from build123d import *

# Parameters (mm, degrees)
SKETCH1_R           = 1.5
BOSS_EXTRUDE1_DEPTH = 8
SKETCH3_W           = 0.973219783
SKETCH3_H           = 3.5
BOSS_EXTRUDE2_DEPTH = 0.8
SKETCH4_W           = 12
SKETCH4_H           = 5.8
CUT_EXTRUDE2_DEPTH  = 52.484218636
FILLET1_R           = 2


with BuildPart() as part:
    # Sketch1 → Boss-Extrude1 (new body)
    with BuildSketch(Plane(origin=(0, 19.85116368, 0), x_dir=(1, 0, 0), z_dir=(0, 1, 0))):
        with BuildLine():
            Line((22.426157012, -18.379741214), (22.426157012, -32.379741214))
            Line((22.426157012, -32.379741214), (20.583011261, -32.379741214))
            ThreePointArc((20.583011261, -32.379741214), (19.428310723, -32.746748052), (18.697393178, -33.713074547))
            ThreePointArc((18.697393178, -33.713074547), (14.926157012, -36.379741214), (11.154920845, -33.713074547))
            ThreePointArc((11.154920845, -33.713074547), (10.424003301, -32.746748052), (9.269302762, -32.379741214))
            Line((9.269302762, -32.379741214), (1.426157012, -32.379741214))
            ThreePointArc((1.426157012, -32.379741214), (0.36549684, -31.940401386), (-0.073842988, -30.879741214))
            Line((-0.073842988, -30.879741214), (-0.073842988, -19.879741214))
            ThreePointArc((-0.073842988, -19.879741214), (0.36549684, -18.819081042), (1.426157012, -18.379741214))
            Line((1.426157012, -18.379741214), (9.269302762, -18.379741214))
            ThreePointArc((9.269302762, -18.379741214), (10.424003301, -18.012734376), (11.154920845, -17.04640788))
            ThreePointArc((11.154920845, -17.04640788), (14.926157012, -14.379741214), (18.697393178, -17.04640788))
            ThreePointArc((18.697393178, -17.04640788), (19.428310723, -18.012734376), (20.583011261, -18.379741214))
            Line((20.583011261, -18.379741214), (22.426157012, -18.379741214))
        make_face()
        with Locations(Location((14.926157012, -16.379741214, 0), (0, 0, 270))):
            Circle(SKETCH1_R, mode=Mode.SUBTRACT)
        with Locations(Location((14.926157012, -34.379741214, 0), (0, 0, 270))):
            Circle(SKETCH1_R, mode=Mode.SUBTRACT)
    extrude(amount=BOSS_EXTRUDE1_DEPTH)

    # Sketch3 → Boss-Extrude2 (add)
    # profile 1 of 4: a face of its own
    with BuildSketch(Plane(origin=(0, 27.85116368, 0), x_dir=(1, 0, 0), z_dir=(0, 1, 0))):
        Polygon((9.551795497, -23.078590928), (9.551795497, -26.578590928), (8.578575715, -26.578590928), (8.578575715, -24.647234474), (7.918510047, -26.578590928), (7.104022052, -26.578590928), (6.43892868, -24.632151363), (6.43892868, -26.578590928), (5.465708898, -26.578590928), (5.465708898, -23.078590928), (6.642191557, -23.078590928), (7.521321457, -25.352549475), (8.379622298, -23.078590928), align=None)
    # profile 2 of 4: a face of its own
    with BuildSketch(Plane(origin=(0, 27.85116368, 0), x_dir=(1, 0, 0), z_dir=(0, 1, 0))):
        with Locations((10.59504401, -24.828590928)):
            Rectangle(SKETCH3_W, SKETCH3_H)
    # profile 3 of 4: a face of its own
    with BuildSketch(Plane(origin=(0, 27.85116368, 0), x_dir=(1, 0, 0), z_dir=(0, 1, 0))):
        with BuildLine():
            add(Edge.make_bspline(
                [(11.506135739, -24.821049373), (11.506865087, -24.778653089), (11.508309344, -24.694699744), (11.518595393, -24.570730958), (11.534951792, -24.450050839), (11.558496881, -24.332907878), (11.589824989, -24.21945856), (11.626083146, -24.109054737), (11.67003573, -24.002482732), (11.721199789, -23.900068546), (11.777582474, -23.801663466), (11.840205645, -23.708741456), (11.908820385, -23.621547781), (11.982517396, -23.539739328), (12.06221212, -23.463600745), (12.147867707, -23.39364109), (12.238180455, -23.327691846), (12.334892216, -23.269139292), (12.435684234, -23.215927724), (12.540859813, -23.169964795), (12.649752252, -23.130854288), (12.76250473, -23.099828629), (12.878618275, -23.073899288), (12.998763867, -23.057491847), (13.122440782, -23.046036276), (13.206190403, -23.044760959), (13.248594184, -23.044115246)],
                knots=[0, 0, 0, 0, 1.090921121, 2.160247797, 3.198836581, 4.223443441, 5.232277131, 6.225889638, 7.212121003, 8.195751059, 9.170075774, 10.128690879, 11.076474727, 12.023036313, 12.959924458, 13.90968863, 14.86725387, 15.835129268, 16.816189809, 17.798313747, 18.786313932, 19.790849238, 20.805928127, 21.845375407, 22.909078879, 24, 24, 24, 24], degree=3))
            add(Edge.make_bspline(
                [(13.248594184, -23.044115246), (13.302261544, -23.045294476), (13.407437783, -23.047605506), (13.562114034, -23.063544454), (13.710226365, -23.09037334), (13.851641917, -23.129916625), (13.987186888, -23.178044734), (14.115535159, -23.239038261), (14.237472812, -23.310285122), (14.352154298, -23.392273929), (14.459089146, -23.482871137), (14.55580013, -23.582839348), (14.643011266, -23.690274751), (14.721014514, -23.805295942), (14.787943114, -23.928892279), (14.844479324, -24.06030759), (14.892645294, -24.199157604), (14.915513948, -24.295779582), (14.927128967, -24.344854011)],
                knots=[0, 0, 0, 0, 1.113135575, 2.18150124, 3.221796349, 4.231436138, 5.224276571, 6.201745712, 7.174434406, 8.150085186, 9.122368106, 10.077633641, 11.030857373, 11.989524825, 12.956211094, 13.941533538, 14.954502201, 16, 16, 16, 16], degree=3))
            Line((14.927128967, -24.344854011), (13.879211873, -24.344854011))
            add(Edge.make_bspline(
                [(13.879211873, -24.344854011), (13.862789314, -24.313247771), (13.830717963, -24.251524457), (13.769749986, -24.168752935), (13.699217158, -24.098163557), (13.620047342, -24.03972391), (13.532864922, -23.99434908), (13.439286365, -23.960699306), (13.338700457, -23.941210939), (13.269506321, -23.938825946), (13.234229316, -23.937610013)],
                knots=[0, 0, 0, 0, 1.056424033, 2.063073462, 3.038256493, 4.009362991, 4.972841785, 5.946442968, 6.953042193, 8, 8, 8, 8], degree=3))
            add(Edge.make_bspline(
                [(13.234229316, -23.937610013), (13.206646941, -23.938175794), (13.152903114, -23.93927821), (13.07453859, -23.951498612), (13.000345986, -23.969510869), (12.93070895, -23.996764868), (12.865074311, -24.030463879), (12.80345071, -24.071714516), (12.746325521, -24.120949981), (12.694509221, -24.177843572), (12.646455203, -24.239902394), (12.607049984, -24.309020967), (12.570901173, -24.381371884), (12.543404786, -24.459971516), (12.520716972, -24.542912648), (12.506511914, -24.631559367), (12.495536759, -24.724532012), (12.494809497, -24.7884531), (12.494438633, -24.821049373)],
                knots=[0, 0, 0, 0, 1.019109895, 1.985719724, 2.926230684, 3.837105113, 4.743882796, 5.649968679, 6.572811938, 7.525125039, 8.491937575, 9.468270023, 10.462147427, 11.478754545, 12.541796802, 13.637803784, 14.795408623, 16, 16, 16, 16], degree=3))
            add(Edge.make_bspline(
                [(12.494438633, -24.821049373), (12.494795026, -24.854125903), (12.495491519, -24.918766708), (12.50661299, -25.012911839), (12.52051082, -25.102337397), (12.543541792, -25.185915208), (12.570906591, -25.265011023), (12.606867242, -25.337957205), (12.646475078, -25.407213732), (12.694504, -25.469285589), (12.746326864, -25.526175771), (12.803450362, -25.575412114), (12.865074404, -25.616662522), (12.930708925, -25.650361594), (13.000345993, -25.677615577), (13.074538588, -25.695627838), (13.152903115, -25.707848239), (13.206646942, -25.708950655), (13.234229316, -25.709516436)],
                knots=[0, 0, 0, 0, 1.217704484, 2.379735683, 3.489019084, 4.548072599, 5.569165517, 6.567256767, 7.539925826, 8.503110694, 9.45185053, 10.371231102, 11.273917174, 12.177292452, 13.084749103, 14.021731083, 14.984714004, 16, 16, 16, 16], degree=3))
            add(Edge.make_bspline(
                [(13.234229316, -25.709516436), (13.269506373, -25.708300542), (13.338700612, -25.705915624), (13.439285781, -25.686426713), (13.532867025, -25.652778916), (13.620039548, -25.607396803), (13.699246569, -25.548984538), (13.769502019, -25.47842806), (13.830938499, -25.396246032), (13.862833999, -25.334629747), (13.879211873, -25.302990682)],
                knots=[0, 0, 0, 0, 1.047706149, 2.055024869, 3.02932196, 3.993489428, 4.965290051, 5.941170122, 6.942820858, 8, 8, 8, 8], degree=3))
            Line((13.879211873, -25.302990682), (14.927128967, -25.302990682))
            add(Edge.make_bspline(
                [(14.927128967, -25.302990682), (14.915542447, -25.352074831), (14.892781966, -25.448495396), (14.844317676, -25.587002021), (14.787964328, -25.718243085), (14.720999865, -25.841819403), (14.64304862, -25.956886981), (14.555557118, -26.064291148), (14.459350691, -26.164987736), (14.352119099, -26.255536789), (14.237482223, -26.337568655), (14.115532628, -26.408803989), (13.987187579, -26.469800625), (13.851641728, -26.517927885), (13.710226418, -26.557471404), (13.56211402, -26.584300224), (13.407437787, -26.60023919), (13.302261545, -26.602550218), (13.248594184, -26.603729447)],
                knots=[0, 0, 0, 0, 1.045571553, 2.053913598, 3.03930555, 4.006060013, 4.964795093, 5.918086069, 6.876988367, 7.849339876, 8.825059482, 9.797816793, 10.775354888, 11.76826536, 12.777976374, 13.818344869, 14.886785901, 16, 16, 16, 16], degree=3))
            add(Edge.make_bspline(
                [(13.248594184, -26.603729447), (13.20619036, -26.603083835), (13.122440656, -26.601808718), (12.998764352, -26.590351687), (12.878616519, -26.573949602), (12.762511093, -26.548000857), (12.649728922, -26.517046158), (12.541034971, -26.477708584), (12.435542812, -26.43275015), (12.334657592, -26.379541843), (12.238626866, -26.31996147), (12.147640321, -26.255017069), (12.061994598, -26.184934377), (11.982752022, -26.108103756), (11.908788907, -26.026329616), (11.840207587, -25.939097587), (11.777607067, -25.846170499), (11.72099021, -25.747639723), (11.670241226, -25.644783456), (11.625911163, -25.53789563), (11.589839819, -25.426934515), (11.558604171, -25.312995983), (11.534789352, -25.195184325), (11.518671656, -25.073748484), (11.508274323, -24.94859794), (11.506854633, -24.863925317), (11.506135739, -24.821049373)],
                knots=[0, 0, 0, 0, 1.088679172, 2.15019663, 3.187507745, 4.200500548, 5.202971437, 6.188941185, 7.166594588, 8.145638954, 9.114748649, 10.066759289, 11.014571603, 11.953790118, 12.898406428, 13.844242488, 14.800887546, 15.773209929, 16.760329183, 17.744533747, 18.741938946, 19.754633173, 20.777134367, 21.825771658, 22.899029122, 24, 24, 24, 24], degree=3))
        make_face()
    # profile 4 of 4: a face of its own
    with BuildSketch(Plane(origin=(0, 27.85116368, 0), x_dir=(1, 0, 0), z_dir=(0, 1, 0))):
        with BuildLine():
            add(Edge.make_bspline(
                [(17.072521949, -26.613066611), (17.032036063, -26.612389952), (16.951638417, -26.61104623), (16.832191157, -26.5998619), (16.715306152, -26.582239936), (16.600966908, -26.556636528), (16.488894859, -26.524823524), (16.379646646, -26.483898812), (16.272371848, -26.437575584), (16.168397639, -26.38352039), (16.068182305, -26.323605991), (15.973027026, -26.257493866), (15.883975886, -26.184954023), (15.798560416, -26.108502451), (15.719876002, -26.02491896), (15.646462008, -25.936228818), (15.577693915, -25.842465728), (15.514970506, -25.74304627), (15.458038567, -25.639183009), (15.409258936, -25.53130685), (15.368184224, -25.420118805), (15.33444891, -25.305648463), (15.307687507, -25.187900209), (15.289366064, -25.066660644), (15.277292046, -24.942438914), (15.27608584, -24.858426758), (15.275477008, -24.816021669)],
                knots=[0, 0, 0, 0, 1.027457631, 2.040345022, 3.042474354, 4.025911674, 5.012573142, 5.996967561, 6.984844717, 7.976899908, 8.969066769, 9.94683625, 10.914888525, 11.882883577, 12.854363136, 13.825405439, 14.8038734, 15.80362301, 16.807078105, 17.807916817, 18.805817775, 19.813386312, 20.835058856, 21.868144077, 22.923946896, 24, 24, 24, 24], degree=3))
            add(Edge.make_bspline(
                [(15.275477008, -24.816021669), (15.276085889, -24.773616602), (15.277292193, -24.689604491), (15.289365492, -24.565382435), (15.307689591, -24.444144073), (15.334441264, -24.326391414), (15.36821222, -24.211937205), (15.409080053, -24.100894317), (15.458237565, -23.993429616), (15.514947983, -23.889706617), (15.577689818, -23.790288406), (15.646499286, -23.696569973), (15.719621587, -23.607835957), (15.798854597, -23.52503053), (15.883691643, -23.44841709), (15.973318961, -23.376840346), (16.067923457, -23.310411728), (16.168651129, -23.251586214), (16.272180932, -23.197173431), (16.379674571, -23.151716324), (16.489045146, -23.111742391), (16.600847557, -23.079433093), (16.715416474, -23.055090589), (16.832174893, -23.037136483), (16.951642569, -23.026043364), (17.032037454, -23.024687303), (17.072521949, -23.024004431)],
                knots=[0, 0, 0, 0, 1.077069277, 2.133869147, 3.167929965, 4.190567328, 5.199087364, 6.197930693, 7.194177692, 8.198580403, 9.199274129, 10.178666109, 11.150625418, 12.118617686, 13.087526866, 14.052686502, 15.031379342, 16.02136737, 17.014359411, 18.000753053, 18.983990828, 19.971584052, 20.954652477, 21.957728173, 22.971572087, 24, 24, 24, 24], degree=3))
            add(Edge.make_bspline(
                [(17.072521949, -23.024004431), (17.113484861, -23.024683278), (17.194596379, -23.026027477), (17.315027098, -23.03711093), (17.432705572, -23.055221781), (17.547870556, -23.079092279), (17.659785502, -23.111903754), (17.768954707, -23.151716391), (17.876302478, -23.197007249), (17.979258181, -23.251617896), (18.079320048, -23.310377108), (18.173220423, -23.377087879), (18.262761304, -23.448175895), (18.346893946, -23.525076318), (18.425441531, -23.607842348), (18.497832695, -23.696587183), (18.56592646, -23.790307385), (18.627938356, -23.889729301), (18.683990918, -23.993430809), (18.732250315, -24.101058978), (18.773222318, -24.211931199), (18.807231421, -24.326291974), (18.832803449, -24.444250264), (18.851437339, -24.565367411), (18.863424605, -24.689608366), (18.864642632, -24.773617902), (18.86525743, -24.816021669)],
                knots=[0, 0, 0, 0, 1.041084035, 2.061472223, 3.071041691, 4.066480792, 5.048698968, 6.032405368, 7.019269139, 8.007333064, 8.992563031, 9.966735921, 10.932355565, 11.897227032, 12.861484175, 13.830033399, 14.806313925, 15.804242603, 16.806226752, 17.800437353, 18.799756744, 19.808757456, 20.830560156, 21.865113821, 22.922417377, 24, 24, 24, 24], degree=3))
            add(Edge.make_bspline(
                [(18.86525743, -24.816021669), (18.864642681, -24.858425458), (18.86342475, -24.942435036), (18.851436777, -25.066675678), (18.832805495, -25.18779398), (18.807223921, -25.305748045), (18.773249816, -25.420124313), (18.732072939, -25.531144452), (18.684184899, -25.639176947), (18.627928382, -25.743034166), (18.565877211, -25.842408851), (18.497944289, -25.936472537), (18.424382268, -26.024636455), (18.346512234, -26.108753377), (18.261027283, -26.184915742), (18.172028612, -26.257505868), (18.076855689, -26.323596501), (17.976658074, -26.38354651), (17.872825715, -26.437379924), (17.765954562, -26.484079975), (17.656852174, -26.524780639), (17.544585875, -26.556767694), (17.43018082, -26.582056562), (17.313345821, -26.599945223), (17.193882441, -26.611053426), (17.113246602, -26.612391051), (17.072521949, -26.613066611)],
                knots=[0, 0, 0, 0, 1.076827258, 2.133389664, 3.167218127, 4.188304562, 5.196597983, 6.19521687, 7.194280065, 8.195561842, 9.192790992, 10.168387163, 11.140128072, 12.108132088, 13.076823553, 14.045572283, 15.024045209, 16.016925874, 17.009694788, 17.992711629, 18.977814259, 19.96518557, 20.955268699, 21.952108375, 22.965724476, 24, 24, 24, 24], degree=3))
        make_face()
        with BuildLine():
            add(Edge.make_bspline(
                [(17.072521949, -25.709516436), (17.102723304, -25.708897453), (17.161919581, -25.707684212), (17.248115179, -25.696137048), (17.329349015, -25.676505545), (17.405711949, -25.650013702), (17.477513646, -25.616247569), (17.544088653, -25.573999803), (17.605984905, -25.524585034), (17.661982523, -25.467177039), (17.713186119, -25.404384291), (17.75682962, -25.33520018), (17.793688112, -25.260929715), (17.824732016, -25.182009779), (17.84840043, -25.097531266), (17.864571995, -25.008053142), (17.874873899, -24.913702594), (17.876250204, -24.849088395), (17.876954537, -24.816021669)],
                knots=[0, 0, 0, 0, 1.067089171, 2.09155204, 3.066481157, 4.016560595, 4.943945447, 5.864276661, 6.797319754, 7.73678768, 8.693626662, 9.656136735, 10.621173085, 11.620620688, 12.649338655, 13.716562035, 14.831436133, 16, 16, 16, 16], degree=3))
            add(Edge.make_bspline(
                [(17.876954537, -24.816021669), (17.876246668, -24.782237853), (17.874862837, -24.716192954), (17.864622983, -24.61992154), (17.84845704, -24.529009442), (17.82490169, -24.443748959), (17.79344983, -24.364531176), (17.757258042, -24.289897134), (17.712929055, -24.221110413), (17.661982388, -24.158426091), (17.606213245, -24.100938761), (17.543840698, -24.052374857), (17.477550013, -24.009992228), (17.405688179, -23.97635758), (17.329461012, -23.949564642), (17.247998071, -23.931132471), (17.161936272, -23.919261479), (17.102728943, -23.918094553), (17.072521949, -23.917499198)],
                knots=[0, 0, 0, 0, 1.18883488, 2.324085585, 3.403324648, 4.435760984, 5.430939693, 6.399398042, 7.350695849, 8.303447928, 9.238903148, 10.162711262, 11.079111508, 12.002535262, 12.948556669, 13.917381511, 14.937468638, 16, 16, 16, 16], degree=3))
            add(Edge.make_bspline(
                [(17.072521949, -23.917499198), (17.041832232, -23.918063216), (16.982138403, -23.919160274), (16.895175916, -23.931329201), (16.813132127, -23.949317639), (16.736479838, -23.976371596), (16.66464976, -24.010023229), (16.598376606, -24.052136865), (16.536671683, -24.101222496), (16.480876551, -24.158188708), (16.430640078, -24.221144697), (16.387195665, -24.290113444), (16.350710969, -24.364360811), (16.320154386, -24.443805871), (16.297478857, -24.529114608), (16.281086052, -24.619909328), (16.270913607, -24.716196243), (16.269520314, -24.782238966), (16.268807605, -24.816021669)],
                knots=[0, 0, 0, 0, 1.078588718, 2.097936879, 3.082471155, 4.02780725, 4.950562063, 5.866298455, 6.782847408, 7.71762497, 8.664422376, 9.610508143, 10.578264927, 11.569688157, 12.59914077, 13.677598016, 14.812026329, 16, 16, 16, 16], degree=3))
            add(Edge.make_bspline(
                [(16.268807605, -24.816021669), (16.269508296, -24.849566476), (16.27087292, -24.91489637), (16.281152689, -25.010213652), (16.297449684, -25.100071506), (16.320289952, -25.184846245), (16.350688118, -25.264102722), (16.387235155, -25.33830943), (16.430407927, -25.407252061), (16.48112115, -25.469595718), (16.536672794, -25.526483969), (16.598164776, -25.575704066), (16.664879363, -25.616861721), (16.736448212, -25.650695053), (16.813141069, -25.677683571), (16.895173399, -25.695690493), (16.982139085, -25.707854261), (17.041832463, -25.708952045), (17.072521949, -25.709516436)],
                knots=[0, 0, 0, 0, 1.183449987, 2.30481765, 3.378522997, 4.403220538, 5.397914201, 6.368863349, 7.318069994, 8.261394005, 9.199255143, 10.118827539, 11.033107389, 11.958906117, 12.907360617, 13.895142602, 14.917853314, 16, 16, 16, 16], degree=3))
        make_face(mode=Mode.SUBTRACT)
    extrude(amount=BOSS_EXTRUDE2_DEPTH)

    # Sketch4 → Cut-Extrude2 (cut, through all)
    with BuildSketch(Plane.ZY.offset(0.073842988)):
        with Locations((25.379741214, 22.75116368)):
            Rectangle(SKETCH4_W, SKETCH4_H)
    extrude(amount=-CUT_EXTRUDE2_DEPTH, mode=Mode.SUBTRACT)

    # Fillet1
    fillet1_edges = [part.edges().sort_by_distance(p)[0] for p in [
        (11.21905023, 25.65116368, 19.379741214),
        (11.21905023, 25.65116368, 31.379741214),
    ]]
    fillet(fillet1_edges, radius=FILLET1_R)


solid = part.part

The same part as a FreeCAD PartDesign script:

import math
import FreeCAD as App
import Part
import Sketcher


def edges_at(feature, points):
    """Names of the edges that pass closest to the given points."""
    edges = feature.Shape.Edges
    near = lambda p: min(range(len(edges)), key=lambda i: edges[i].distToShape(Part.Vertex(*p))[0])
    return sorted({f"Edge{near(p) + 1}" for p in points})

doc = App.newDocument("Part")
params = doc.addObject("Spreadsheet::Sheet", "Params")
for row, (alias, value) in enumerate([
    ("sketch1_diameter", "3 mm"),
    ("sketch1_radius", "2 mm"),
    ("sketch1_radius2", "4 mm"),
    ("sketch1_height", "14 mm"),
    ("pad1_length", "8 mm"),
    ("sketch2_height", "3.5 mm"),
    ("pad2_length", "0.8 mm"),
    ("sketch3_height", "12 mm"),
    ("sketch3_width", "5.8 mm"),
    ("fillet_radius", "2 mm"),
], start=1):
    params.set(f"A{row}", alias)
    params.set(f"B{row}", "=" + value)
    params.setAlias(f"B{row}", alias)

body = doc.addObject("PartDesign::Body", "Body")

sketch1 = body.newObject("Sketcher::SketchObject", "Sketch")
sketch1.AttachmentSupport = (doc.getObject("XZ_Plane"), [""])
sketch1.MapMode = "FlatFace"
sketch1.AttachmentOffset = App.Placement(App.Vector(0, 0, -19.851164), App.Rotation())
sketch1.addGeometry(Part.LineSegment(App.Vector(22.4, 32.4, 0), App.Vector(22.4, 18.4, 0)), False)
sketch1.addGeometry(Part.LineSegment(App.Vector(22.4, 18.4, 0), App.Vector(20.6, 18.4, 0)), False)
sketch1.addGeometry(Part.ArcOfCircle(Part.Circle(App.Vector(20.6, 16.4, 0), App.Vector(0, 0, 1), 2), math.radians(90), math.radians(161)), False)
sketch1.addGeometry(Part.ArcOfCircle(Part.Circle(App.Vector(14.9, 18.4, 0), App.Vector(0, 0, 1), 4), math.radians(-161), math.radians(-19)), False)
sketch1.addGeometry(Part.ArcOfCircle(Part.Circle(App.Vector(9.3, 16.4, 0), App.Vector(0, 0, 1), 2), math.radians(19), math.radians(90)), False)
sketch1.addGeometry(Part.LineSegment(App.Vector(9.3, 18.4, 0), App.Vector(1.4, 18.4, 0)), False)
sketch1.addGeometry(Part.ArcOfCircle(Part.Circle(App.Vector(1.4, 19.9, 0), App.Vector(0, 0, 1), 1.5), math.radians(180), math.radians(270)), False)
sketch1.addGeometry(Part.LineSegment(App.Vector(-0.1, 19.9, 0), App.Vector(-0.1, 30.9, 0)), False)
sketch1.addGeometry(Part.ArcOfCircle(Part.Circle(App.Vector(1.4, 30.9, 0), App.Vector(0, 0, 1), 1.5), math.radians(90), math.radians(180)), False)
sketch1.addGeometry(Part.LineSegment(App.Vector(1.4, 32.4, 0), App.Vector(9.3, 32.4, 0)), False)
sketch1.addGeometry(Part.ArcOfCircle(Part.Circle(App.Vector(9.3, 34.4, 0), App.Vector(0, 0, 1), 2), math.radians(-90), math.radians(-19)), False)
sketch1.addGeometry(Part.ArcOfCircle(Part.Circle(App.Vector(14.9, 32.4, 0), App.Vector(0, 0, 1), 4), math.radians(19), math.radians(161)), False)
sketch1.addGeometry(Part.ArcOfCircle(Part.Circle(App.Vector(20.6, 34.4, 0), App.Vector(0, 0, 1), 2), math.radians(-161), math.radians(-90)), False)
sketch1.addGeometry(Part.LineSegment(App.Vector(20.6, 32.4, 0), App.Vector(22.4, 32.4, 0)), False)
sketch1.addGeometry(Part.Circle(App.Vector(14.9, 34.4, 0), App.Vector(0, 0, 1), 1.5), False)
sketch1.addGeometry(Part.Circle(App.Vector(14.9, 16.4, 0), App.Vector(0, 0, 1), 1.5), False)
sketch1.addConstraint(Sketcher.Constraint("Coincident", 0, 2, 1, 1))
sketch1.addConstraint(Sketcher.Constraint("Tangent", 1, 2, 2, 1))
sketch1.addConstraint(Sketcher.Constraint("Tangent", 2, 2, 3, 2))
sketch1.addConstraint(Sketcher.Constraint("Tangent", 3, 1, 4, 1))
sketch1.addConstraint(Sketcher.Constraint("Tangent", 4, 2, 5, 1))
sketch1.addConstraint(Sketcher.Constraint("Tangent", 5, 2, 6, 2))
sketch1.addConstraint(Sketcher.Constraint("Tangent", 6, 1, 7, 1))
sketch1.addConstraint(Sketcher.Constraint("Tangent", 7, 2, 8, 2))
sketch1.addConstraint(Sketcher.Constraint("Tangent", 8, 1, 9, 1))
sketch1.addConstraint(Sketcher.Constraint("Tangent", 9, 2, 10, 1))
sketch1.addConstraint(Sketcher.Constraint("Tangent", 10, 2, 11, 2))
sketch1.addConstraint(Sketcher.Constraint("Tangent", 11, 1, 12, 1))
sketch1.addConstraint(Sketcher.Constraint("Tangent", 12, 2, 13, 1))
sketch1.addConstraint(Sketcher.Constraint("Coincident", 13, 2, 0, 1))
sketch1.addConstraint(Sketcher.Constraint("Vertical", 0))
sketch1.addConstraint(Sketcher.Constraint("Horizontal", 1))
sketch1.addConstraint(Sketcher.Constraint("Horizontal", 5))
sketch1.addConstraint(Sketcher.Constraint("Vertical", 7))
sketch1.addConstraint(Sketcher.Constraint("Horizontal", 9))
sketch1.addConstraint(Sketcher.Constraint("Horizontal", 13))
sketch1.addConstraint(Sketcher.Constraint("Equal", 2, 4))
sketch1.addConstraint(Sketcher.Constraint("Equal", 6, 8))
sketch1.addConstraint(Sketcher.Constraint("Equal", 4, 10))
sketch1.addConstraint(Sketcher.Constraint("Equal", 3, 11))
sketch1.addConstraint(Sketcher.Constraint("Equal", 10, 12))
sketch1.addConstraint(Sketcher.Constraint("Equal", 8, 14))
sketch1.addConstraint(Sketcher.Constraint("Equal", 14, 15))
sketch1.addConstraint(Sketcher.Constraint("Horizontal", 2, 3, 4, 3))
sketch1.addConstraint(Sketcher.Constraint("Horizontal", 10, 3, 12, 3))
sketch1.addConstraint(Sketcher.Constraint("Horizontal", 12, 3, 14, 3))
sketch1.addConstraint(Sketcher.Constraint("Horizontal", 4, 3, 15, 3))
sketch1.addConstraint(Sketcher.Constraint("Horizontal", 3, 3, 0, 2))
sketch1.addConstraint(Sketcher.Constraint("Horizontal", 11, 3, 8, 1))
sketch1.addConstraint(Sketcher.Constraint("Vertical", 4, 3, 10, 3))
sketch1.addConstraint(Sketcher.Constraint("Vertical", 11, 3, 14, 3))
sketch1.addConstraint(Sketcher.Constraint("Vertical", 14, 3, 15, 3))
sketch1.addConstraint(Sketcher.Constraint("Diameter", 14, 3.0))
sketch1.addConstraint(Sketcher.Constraint("Radius", 2, 2.0))
sketch1.addConstraint(Sketcher.Constraint("Radius", 3, 4.0))
sketch1.addConstraint(Sketcher.Constraint("DistanceY", 0, 2, 0, 1, 14.0))
sketch1.addConstraint(Sketcher.Constraint("DistanceX", 6, 3, 3, 3, 13.5))
sketch1.addConstraint(Sketcher.Constraint("DistanceX", 3, 3, 0, 2, 7.5))
sketch1.addConstraint(Sketcher.Constraint("DistanceX", -1, 1, 2, 3, 20.583011))
sketch1.addConstraint(Sketcher.Constraint("DistanceY", -1, 1, 2, 3, 16.379741))
sketch1.setExpression("Constraints[36]", "Params.sketch1_diameter")
sketch1.setExpression("Constraints[37]", "Params.sketch1_radius")
sketch1.setExpression("Constraints[38]", "Params.sketch1_radius2")
sketch1.setExpression("Constraints[39]", "Params.sketch1_height")
pad1 = body.newObject("PartDesign::Pad", "Pad")
pad1.Profile = sketch1
pad1.setExpression("Length", "Params.pad1_length")
pad1.Reversed = True

sketch2 = body.newObject("Sketcher::SketchObject", "Sketch001")
sketch2.AttachmentSupport = (doc.getObject("XZ_Plane"), [""])
sketch2.MapMode = "FlatFace"
sketch2.AttachmentOffset = App.Placement(App.Vector(0, 0, -27.851164), App.Rotation())
sketch2.addGeometry(Part.LineSegment(App.Vector(9.551795, 26.578591, 0), App.Vector(9.551795, 23.078591, 0)), False)
sketch2.addGeometry(Part.LineSegment(App.Vector(9.551795, 23.078591, 0), App.Vector(8.379622, 23.078591, 0)), False)
sketch2.addGeometry(Part.LineSegment(App.Vector(8.379622, 23.078591, 0), App.Vector(7.521321, 25.352549, 0)), False)
sketch2.addGeometry(Part.LineSegment(App.Vector(7.521321, 25.352549, 0), App.Vector(6.642192, 23.078591, 0)), False)
sketch2.addGeometry(Part.LineSegment(App.Vector(6.642192, 23.078591, 0), App.Vector(5.465709, 23.078591, 0)), False)
sketch2.addGeometry(Part.LineSegment(App.Vector(5.465709, 23.078591, 0), App.Vector(5.465709, 26.578591, 0)), False)
sketch2.addGeometry(Part.LineSegment(App.Vector(5.465709, 26.578591, 0), App.Vector(6.438929, 26.578591, 0)), False)
sketch2.addGeometry(Part.LineSegment(App.Vector(6.438929, 26.578591, 0), App.Vector(6.438929, 24.632151, 0)), False)
sketch2.addGeometry(Part.LineSegment(App.Vector(6.438929, 24.632151, 0), App.Vector(7.104022, 26.578591, 0)), False)
sketch2.addGeometry(Part.LineSegment(App.Vector(7.104022, 26.578591, 0), App.Vector(7.91851, 26.578591, 0)), False)
sketch2.addGeometry(Part.LineSegment(App.Vector(7.91851, 26.578591, 0), App.Vector(8.578576, 24.647234, 0)), False)
sketch2.addGeometry(Part.LineSegment(App.Vector(8.578576, 24.647234, 0), App.Vector(8.578576, 26.578591, 0)), False)
sketch2.addGeometry(Part.LineSegment(App.Vector(8.578576, 26.578591, 0), App.Vector(9.551795, 26.578591, 0)), False)
sketch2.addGeometry(Part.LineSegment(App.Vector(10.108434, 23.078591, 0), App.Vector(10.108434, 26.578591, 0)), False)
sketch2.addGeometry(Part.LineSegment(App.Vector(10.108434, 26.578591, 0), App.Vector(11.081654, 26.578591, 0)), False)
sketch2.addGeometry(Part.LineSegment(App.Vector(11.081654, 26.578591, 0), App.Vector(11.081654, 23.078591, 0)), False)
sketch2.addGeometry(Part.LineSegment(App.Vector(11.081654, 23.078591, 0), App.Vector(10.108434, 23.078591, 0)), False)
sketch2.addGeometry(Part.BSplineCurve([App.Vector(11.506136, 24.821049, 0), App.Vector(11.506865, 24.778653, 0), App.Vector(11.508309, 24.6947, 0), App.Vector(11.518595, 24.570731, 0), App.Vector(11.534952, 24.450051, 0), App.Vector(11.558497, 24.332908, 0), App.Vector(11.589825, 24.219459, 0), App.Vector(11.626083, 24.109055, 0), App.Vector(11.670036, 24.002483, 0), App.Vector(11.7212, 23.900069, 0), App.Vector(11.777582, 23.801663, 0), App.Vector(11.840206, 23.708741, 0), App.Vector(11.90882, 23.621548, 0), App.Vector(11.982517, 23.539739, 0), App.Vector(12.062212, 23.463601, 0), App.Vector(12.147868, 23.393641, 0), App.Vector(12.23818, 23.327692, 0), App.Vector(12.334892, 23.269139, 0), App.Vector(12.435684, 23.215928, 0), App.Vector(12.54086, 23.169965, 0), App.Vector(12.649752, 23.130854, 0), App.Vector(12.762505, 23.099829, 0), App.Vector(12.878618, 23.073899, 0), App.Vector(12.998764, 23.057492, 0), App.Vector(13.122441, 23.046036, 0), App.Vector(13.20619, 23.044761, 0), App.Vector(13.248594, 23.044115, 0)], [4, 1, 1, 1, 1, 1, 1, 1, 1, 1, 1, 1, 1, 1, 1, 1, 1, 1, 1, 1, 1, 1, 1, 1, 4], [0, 1.090921121, 2.160247797, 3.198836581, 4.223443441, 5.232277131, 6.225889638, 7.212121003, 8.195751059, 9.170075774, 10.128690879, 11.076474727, 12.023036313, 12.959924458, 13.90968863, 14.86725387, 15.835129268, 16.816189809, 17.798313747, 18.786313932, 19.790849238, 20.805928127, 21.845375407, 22.909078879, 24], False, 3, [1, 1, 1, 1, 1, 1, 1, 1, 1, 1, 1, 1, 1, 1, 1, 1, 1, 1, 1, 1, 1, 1, 1, 1, 1, 1, 1], False), False)
sketch2.addGeometry(Part.BSplineCurve([App.Vector(13.248594, 26.603729, 0), App.Vector(13.20619, 26.603084, 0), App.Vector(13.122441, 26.601809, 0), App.Vector(12.998764, 26.590352, 0), App.Vector(12.878617, 26.57395, 0), App.Vector(12.762511, 26.548001, 0), App.Vector(12.649729, 26.517046, 0), App.Vector(12.541035, 26.477709, 0), App.Vector(12.435543, 26.43275, 0), App.Vector(12.334658, 26.379542, 0), App.Vector(12.238627, 26.319961, 0), App.Vector(12.14764, 26.255017, 0), App.Vector(12.061995, 26.184934, 0), App.Vector(11.982752, 26.108104, 0), App.Vector(11.908789, 26.02633, 0), App.Vector(11.840208, 25.939098, 0), App.Vector(11.777607, 25.84617, 0), App.Vector(11.72099, 25.74764, 0), App.Vector(11.670241, 25.644783, 0), App.Vector(11.625911, 25.537896, 0), App.Vector(11.58984, 25.426935, 0), App.Vector(11.558604, 25.312996, 0), App.Vector(11.534789, 25.195184, 0), App.Vector(11.518672, 25.073748, 0), App.Vector(11.508274, 24.948598, 0), App.Vector(11.506855, 24.863925, 0), App.Vector(11.506136, 24.821049, 0)], [4, 1, 1, 1, 1, 1, 1, 1, 1, 1, 1, 1, 1, 1, 1, 1, 1, 1, 1, 1, 1, 1, 1, 1, 4], [0, 1.088679172, 2.15019663, 3.187507745, 4.200500548, 5.202971437, 6.188941185, 7.166594588, 8.145638954, 9.114748649, 10.066759289, 11.014571603, 11.953790118, 12.898406428, 13.844242488, 14.800887546, 15.773209929, 16.760329183, 17.744533747, 18.741938946, 19.754633173, 20.777134367, 21.825771658, 22.899029122, 24], False, 3, [1, 1, 1, 1, 1, 1, 1, 1, 1, 1, 1, 1, 1, 1, 1, 1, 1, 1, 1, 1, 1, 1, 1, 1, 1, 1, 1], False), False)
sketch2.addGeometry(Part.BSplineCurve([App.Vector(14.927129, 25.302991, 0), App.Vector(14.915542, 25.352075, 0), App.Vector(14.892782, 25.448495, 0), App.Vector(14.844318, 25.587002, 0), App.Vector(14.787964, 25.718243, 0), App.Vector(14.721, 25.841819, 0), App.Vector(14.643049, 25.956887, 0), App.Vector(14.555557, 26.064291, 0), App.Vector(14.459351, 26.164988, 0), App.Vector(14.352119, 26.255537, 0), App.Vector(14.237482, 26.337569, 0), App.Vector(14.115533, 26.408804, 0), App.Vector(13.987188, 26.469801, 0), App.Vector(13.851642, 26.517928, 0), App.Vector(13.710226, 26.557471, 0), App.Vector(13.562114, 26.5843, 0), App.Vector(13.407438, 26.600239, 0), App.Vector(13.302262, 26.60255, 0), App.Vector(13.248594, 26.603729, 0)], [4, 1, 1, 1, 1, 1, 1, 1, 1, 1, 1, 1, 1, 1, 1, 1, 4], [0, 1.045571553, 2.053913598, 3.03930555, 4.006060013, 4.964795093, 5.918086069, 6.876988367, 7.849339876, 8.825059482, 9.797816793, 10.775354888, 11.76826536, 12.777976374, 13.818344869, 14.886785901, 16], False, 3, [1, 1, 1, 1, 1, 1, 1, 1, 1, 1, 1, 1, 1, 1, 1, 1, 1, 1, 1], False), False)
sketch2.addGeometry(Part.LineSegment(App.Vector(14.927129, 25.302991, 0), App.Vector(13.879212, 25.302991, 0)), False)
sketch2.addGeometry(Part.BSplineCurve([App.Vector(13.234229, 25.709516, 0), App.Vector(13.269506, 25.708301, 0), App.Vector(13.338701, 25.705916, 0), App.Vector(13.439286, 25.686427, 0), App.Vector(13.532867, 25.652779, 0), App.Vector(13.62004, 25.607397, 0), App.Vector(13.699247, 25.548985, 0), App.Vector(13.769502, 25.478428, 0), App.Vector(13.830938, 25.396246, 0), App.Vector(13.862834, 25.33463, 0), App.Vector(13.879212, 25.302991, 0)], [4, 1, 1, 1, 1, 1, 1, 1, 4], [0, 1.047706149, 2.055024869, 3.02932196, 3.993489428, 4.965290051, 5.941170122, 6.942820858, 8], False, 3, [1, 1, 1, 1, 1, 1, 1, 1, 1, 1, 1], False), False)
sketch2.addGeometry(Part.BSplineCurve([App.Vector(12.494439, 24.821049, 0), App.Vector(12.494795, 24.854126, 0), App.Vector(12.495492, 24.918767, 0), App.Vector(12.506613, 25.012912, 0), App.Vector(12.520511, 25.102337, 0), App.Vector(12.543542, 25.185915, 0), App.Vector(12.570907, 25.265011, 0), App.Vector(12.606867, 25.337957, 0), App.Vector(12.646475, 25.407214, 0), App.Vector(12.694504, 25.469286, 0), App.Vector(12.746327, 25.526176, 0), App.Vector(12.80345, 25.575412, 0), App.Vector(12.865074, 25.616663, 0), App.Vector(12.930709, 25.650362, 0), App.Vector(13.000346, 25.677616, 0), App.Vector(13.074539, 25.695628, 0), App.Vector(13.152903, 25.707848, 0), App.Vector(13.206647, 25.708951, 0), App.Vector(13.234229, 25.709516, 0)], [4, 1, 1, 1, 1, 1, 1, 1, 1, 1, 1, 1, 1, 1, 1, 1, 4], [0, 1.217704484, 2.379735683, 3.489019084, 4.548072599, 5.569165517, 6.567256767, 7.539925826, 8.503110694, 9.45185053, 10.371231102, 11.273917174, 12.177292452, 13.084749103, 14.021731083, 14.984714004, 16], False, 3, [1, 1, 1, 1, 1, 1, 1, 1, 1, 1, 1, 1, 1, 1, 1, 1, 1, 1, 1], False), False)
sketch2.addGeometry(Part.BSplineCurve([App.Vector(13.234229, 23.93761, 0), App.Vector(13.206647, 23.938176, 0), App.Vector(13.152903, 23.939278, 0), App.Vector(13.074539, 23.951499, 0), App.Vector(13.000346, 23.969511, 0), App.Vector(12.930709, 23.996765, 0), App.Vector(12.865074, 24.030464, 0), App.Vector(12.803451, 24.071715, 0), App.Vector(12.746326, 24.12095, 0), App.Vector(12.694509, 24.177844, 0), App.Vector(12.646455, 24.239902, 0), App.Vector(12.60705, 24.309021, 0), App.Vector(12.570901, 24.381372, 0), App.Vector(12.543405, 24.459972, 0), App.Vector(12.520717, 24.542913, 0), App.Vector(12.506512, 24.631559, 0), App.Vector(12.495537, 24.724532, 0), App.Vector(12.494809, 24.788453, 0), App.Vector(12.494439, 24.821049, 0)], [4, 1, 1, 1, 1, 1, 1, 1, 1, 1, 1, 1, 1, 1, 1, 1, 4], [0, 1.019109895, 1.985719724, 2.926230684, 3.837105113, 4.743882796, 5.649968679, 6.572811938, 7.525125039, 8.491937575, 9.468270023, 10.462147427, 11.478754545, 12.541796802, 13.637803784, 14.795408623, 16], False, 3, [1, 1, 1, 1, 1, 1, 1, 1, 1, 1, 1, 1, 1, 1, 1, 1, 1, 1, 1], False), False)
sketch2.addGeometry(Part.BSplineCurve([App.Vector(13.879212, 24.344854, 0), App.Vector(13.862789, 24.313248, 0), App.Vector(13.830718, 24.251524, 0), App.Vector(13.76975, 24.168753, 0), App.Vector(13.699217, 24.098164, 0), App.Vector(13.620047, 24.039724, 0), App.Vector(13.532865, 23.994349, 0), App.Vector(13.439286, 23.960699, 0), App.Vector(13.3387, 23.941211, 0), App.Vector(13.269506, 23.938826, 0), App.Vector(13.234229, 23.93761, 0)], [4, 1, 1, 1, 1, 1, 1, 1, 4], [0, 1.056424033, 2.063073462, 3.038256493, 4.009362991, 4.972841785, 5.946442968, 6.953042193, 8], False, 3, [1, 1, 1, 1, 1, 1, 1, 1, 1, 1, 1], False), False)
sketch2.addGeometry(Part.LineSegment(App.Vector(13.879212, 24.344854, 0), App.Vector(14.927129, 24.344854, 0)), False)
sketch2.addGeometry(Part.BSplineCurve([App.Vector(13.248594, 23.044115, 0), App.Vector(13.302262, 23.045294, 0), App.Vector(13.407438, 23.047606, 0), App.Vector(13.562114, 23.063544, 0), App.Vector(13.710226, 23.090373, 0), App.Vector(13.851642, 23.129917, 0), App.Vector(13.987187, 23.178045, 0), App.Vector(14.115535, 23.239038, 0), App.Vector(14.237473, 23.310285, 0), App.Vector(14.352154, 23.392274, 0), App.Vector(14.459089, 23.482871, 0), App.Vector(14.5558, 23.582839, 0), App.Vector(14.643011, 23.690275, 0), App.Vector(14.721015, 23.805296, 0), App.Vector(14.787943, 23.928892, 0), App.Vector(14.844479, 24.060308, 0), App.Vector(14.892645, 24.199158, 0), App.Vector(14.915514, 24.29578, 0), App.Vector(14.927129, 24.344854, 0)], [4, 1, 1, 1, 1, 1, 1, 1, 1, 1, 1, 1, 1, 1, 1, 1, 4], [0, 1.113135575, 2.18150124, 3.221796349, 4.231436138, 5.224276571, 6.201745712, 7.174434406, 8.150085186, 9.122368106, 10.077633641, 11.030857373, 11.989524825, 12.956211094, 13.941533538, 14.954502201, 16], False, 3, [1, 1, 1, 1, 1, 1, 1, 1, 1, 1, 1, 1, 1, 1, 1, 1, 1, 1, 1], False), False)
sketch2.addGeometry(Part.BSplineCurve([App.Vector(17.072522, 26.613067, 0), App.Vector(17.032036, 26.61239, 0), App.Vector(16.951638, 26.611046, 0), App.Vector(16.832191, 26.599862, 0), App.Vector(16.715306, 26.58224, 0), App.Vector(16.600967, 26.556637, 0), App.Vector(16.488895, 26.524824, 0), App.Vector(16.379647, 26.483899, 0), App.Vector(16.272372, 26.437576, 0), App.Vector(16.168398, 26.38352, 0), App.Vector(16.068182, 26.323606, 0), App.Vector(15.973027, 26.257494, 0), App.Vector(15.883976, 26.184954, 0), App.Vector(15.79856, 26.108502, 0), App.Vector(15.719876, 26.024919, 0), App.Vector(15.646462, 25.936229, 0), App.Vector(15.577694, 25.842466, 0), App.Vector(15.514971, 25.743046, 0), App.Vector(15.458039, 25.639183, 0), App.Vector(15.409259, 25.531307, 0), App.Vector(15.368184, 25.420119, 0), App.Vector(15.334449, 25.305648, 0), App.Vector(15.307688, 25.1879, 0), App.Vector(15.289366, 25.066661, 0), App.Vector(15.277292, 24.942439, 0), App.Vector(15.276086, 24.858427, 0), App.Vector(15.275477, 24.816022, 0)], [4, 1, 1, 1, 1, 1, 1, 1, 1, 1, 1, 1, 1, 1, 1, 1, 1, 1, 1, 1, 1, 1, 1, 1, 4], [0, 1.027457631, 2.040345022, 3.042474354, 4.025911674, 5.012573142, 5.996967561, 6.984844717, 7.976899908, 8.969066769, 9.94683625, 10.914888525, 11.882883577, 12.854363136, 13.825405439, 14.8038734, 15.80362301, 16.807078105, 17.807916817, 18.805817775, 19.813386312, 20.835058856, 21.868144077, 22.923946896, 24], False, 3, [1, 1, 1, 1, 1, 1, 1, 1, 1, 1, 1, 1, 1, 1, 1, 1, 1, 1, 1, 1, 1, 1, 1, 1, 1, 1, 1], False), False)
sketch2.addGeometry(Part.BSplineCurve([App.Vector(18.865257, 24.816022, 0), App.Vector(18.864643, 24.858425, 0), App.Vector(18.863425, 24.942435, 0), App.Vector(18.851437, 25.066676, 0), App.Vector(18.832805, 25.187794, 0), App.Vector(18.807224, 25.305748, 0), App.Vector(18.77325, 25.420124, 0), App.Vector(18.732073, 25.531144, 0), App.Vector(18.684185, 25.639177, 0), App.Vector(18.627928, 25.743034, 0), App.Vector(18.565877, 25.842409, 0), App.Vector(18.497944, 25.936473, 0), App.Vector(18.424382, 26.024636, 0), App.Vector(18.346512, 26.108753, 0), App.Vector(18.261027, 26.184916, 0), App.Vector(18.172029, 26.257506, 0), App.Vector(18.076856, 26.323597, 0), App.Vector(17.976658, 26.383547, 0), App.Vector(17.872826, 26.43738, 0), App.Vector(17.765955, 26.48408, 0), App.Vector(17.656852, 26.524781, 0), App.Vector(17.544586, 26.556768, 0), App.Vector(17.430181, 26.582057, 0), App.Vector(17.313346, 26.599945, 0), App.Vector(17.193882, 26.611053, 0), App.Vector(17.113247, 26.612391, 0), App.Vector(17.072522, 26.613067, 0)], [4, 1, 1, 1, 1, 1, 1, 1, 1, 1, 1, 1, 1, 1, 1, 1, 1, 1, 1, 1, 1, 1, 1, 1, 4], [0, 1.076827258, 2.133389664, 3.167218127, 4.188304562, 5.196597983, 6.19521687, 7.194280065, 8.195561842, 9.192790992, 10.168387163, 11.140128072, 12.108132088, 13.076823553, 14.045572283, 15.024045209, 16.016925874, 17.009694788, 17.992711629, 18.977814259, 19.96518557, 20.955268699, 21.952108375, 22.965724476, 24], False, 3, [1, 1, 1, 1, 1, 1, 1, 1, 1, 1, 1, 1, 1, 1, 1, 1, 1, 1, 1, 1, 1, 1, 1, 1, 1, 1, 1], False), False)
sketch2.addGeometry(Part.BSplineCurve([App.Vector(17.072522, 23.024004, 0), App.Vector(17.113485, 23.024683, 0), App.Vector(17.194596, 23.026027, 0), App.Vector(17.315027, 23.037111, 0), App.Vector(17.432706, 23.055222, 0), App.Vector(17.547871, 23.079092, 0), App.Vector(17.659786, 23.111904, 0), App.Vector(17.768955, 23.151716, 0), App.Vector(17.876302, 23.197007, 0), App.Vector(17.979258, 23.251618, 0), App.Vector(18.07932, 23.310377, 0), App.Vector(18.17322, 23.377088, 0), App.Vector(18.262761, 23.448176, 0), App.Vector(18.346894, 23.525076, 0), App.Vector(18.425442, 23.607842, 0), App.Vector(18.497833, 23.696587, 0), App.Vector(18.565926, 23.790307, 0), App.Vector(18.627938, 23.889729, 0), App.Vector(18.683991, 23.993431, 0), App.Vector(18.73225, 24.101059, 0), App.Vector(18.773222, 24.211931, 0), App.Vector(18.807231, 24.326292, 0), App.Vector(18.832803, 24.44425, 0), App.Vector(18.851437, 24.565367, 0), App.Vector(18.863425, 24.689608, 0), App.Vector(18.864643, 24.773618, 0), App.Vector(18.865257, 24.816022, 0)], [4, 1, 1, 1, 1, 1, 1, 1, 1, 1, 1, 1, 1, 1, 1, 1, 1, 1, 1, 1, 1, 1, 1, 1, 4], [0, 1.041084035, 2.061472223, 3.071041691, 4.066480792, 5.048698968, 6.032405368, 7.019269139, 8.007333064, 8.992563031, 9.966735921, 10.932355565, 11.897227032, 12.861484175, 13.830033399, 14.806313925, 15.804242603, 16.806226752, 17.800437353, 18.799756744, 19.808757456, 20.830560156, 21.865113821, 22.922417377, 24], False, 3, [1, 1, 1, 1, 1, 1, 1, 1, 1, 1, 1, 1, 1, 1, 1, 1, 1, 1, 1, 1, 1, 1, 1, 1, 1, 1, 1], False), False)
sketch2.addGeometry(Part.BSplineCurve([App.Vector(15.275477, 24.816022, 0), App.Vector(15.276086, 24.773617, 0), App.Vector(15.277292, 24.689604, 0), App.Vector(15.289365, 24.565382, 0), App.Vector(15.30769, 24.444144, 0), App.Vector(15.334441, 24.326391, 0), App.Vector(15.368212, 24.211937, 0), App.Vector(15.40908, 24.100894, 0), App.Vector(15.458238, 23.99343, 0), App.Vector(15.514948, 23.889707, 0), App.Vector(15.57769, 23.790288, 0), App.Vector(15.646499, 23.69657, 0), App.Vector(15.719622, 23.607836, 0), App.Vector(15.798855, 23.525031, 0), App.Vector(15.883692, 23.448417, 0), App.Vector(15.973319, 23.37684, 0), App.Vector(16.067923, 23.310412, 0), App.Vector(16.168651, 23.251586, 0), App.Vector(16.272181, 23.197173, 0), App.Vector(16.379675, 23.151716, 0), App.Vector(16.489045, 23.111742, 0), App.Vector(16.600848, 23.079433, 0), App.Vector(16.715416, 23.055091, 0), App.Vector(16.832175, 23.037136, 0), App.Vector(16.951643, 23.026043, 0), App.Vector(17.032037, 23.024687, 0), App.Vector(17.072522, 23.024004, 0)], [4, 1, 1, 1, 1, 1, 1, 1, 1, 1, 1, 1, 1, 1, 1, 1, 1, 1, 1, 1, 1, 1, 1, 1, 4], [0, 1.077069277, 2.133869147, 3.167929965, 4.190567328, 5.199087364, 6.197930693, 7.194177692, 8.198580403, 9.199274129, 10.178666109, 11.150625418, 12.118617686, 13.087526866, 14.052686502, 15.031379342, 16.02136737, 17.014359411, 18.000753053, 18.983990828, 19.971584052, 20.954652477, 21.957728173, 22.971572087, 24], False, 3, [1, 1, 1, 1, 1, 1, 1, 1, 1, 1, 1, 1, 1, 1, 1, 1, 1, 1, 1, 1, 1, 1, 1, 1, 1, 1, 1], False), False)
sketch2.addGeometry(Part.BSplineCurve([App.Vector(16.268808, 24.816022, 0), App.Vector(16.269508, 24.849566, 0), App.Vector(16.270873, 24.914896, 0), App.Vector(16.281153, 25.010214, 0), App.Vector(16.29745, 25.100072, 0), App.Vector(16.32029, 25.184846, 0), App.Vector(16.350688, 25.264103, 0), App.Vector(16.387235, 25.338309, 0), App.Vector(16.430408, 25.407252, 0), App.Vector(16.481121, 25.469596, 0), App.Vector(16.536673, 25.526484, 0), App.Vector(16.598165, 25.575704, 0), App.Vector(16.664879, 25.616862, 0), App.Vector(16.736448, 25.650695, 0), App.Vector(16.813141, 25.677684, 0), App.Vector(16.895173, 25.69569, 0), App.Vector(16.982139, 25.707854, 0), App.Vector(17.041832, 25.708952, 0), App.Vector(17.072522, 25.709516, 0)], [4, 1, 1, 1, 1, 1, 1, 1, 1, 1, 1, 1, 1, 1, 1, 1, 4], [0, 1.183449987, 2.30481765, 3.378522997, 4.403220538, 5.397914201, 6.368863349, 7.318069994, 8.261394005, 9.199255143, 10.118827539, 11.033107389, 11.958906117, 12.907360617, 13.895142602, 14.917853314, 16], False, 3, [1, 1, 1, 1, 1, 1, 1, 1, 1, 1, 1, 1, 1, 1, 1, 1, 1, 1, 1], False), False)
sketch2.addGeometry(Part.BSplineCurve([App.Vector(17.072522, 23.917499, 0), App.Vector(17.041832, 23.918063, 0), App.Vector(16.982138, 23.91916, 0), App.Vector(16.895176, 23.931329, 0), App.Vector(16.813132, 23.949318, 0), App.Vector(16.73648, 23.976372, 0), App.Vector(16.66465, 24.010023, 0), App.Vector(16.598377, 24.052137, 0), App.Vector(16.536672, 24.101222, 0), App.Vector(16.480877, 24.158189, 0), App.Vector(16.43064, 24.221145, 0), App.Vector(16.387196, 24.290113, 0), App.Vector(16.350711, 24.364361, 0), App.Vector(16.320154, 24.443806, 0), App.Vector(16.297479, 24.529115, 0), App.Vector(16.281086, 24.619909, 0), App.Vector(16.270914, 24.716196, 0), App.Vector(16.26952, 24.782239, 0), App.Vector(16.268808, 24.816022, 0)], [4, 1, 1, 1, 1, 1, 1, 1, 1, 1, 1, 1, 1, 1, 1, 1, 4], [0, 1.078588718, 2.097936879, 3.082471155, 4.02780725, 4.950562063, 5.866298455, 6.782847408, 7.71762497, 8.664422376, 9.610508143, 10.578264927, 11.569688157, 12.59914077, 13.677598016, 14.812026329, 16], False, 3, [1, 1, 1, 1, 1, 1, 1, 1, 1, 1, 1, 1, 1, 1, 1, 1, 1, 1, 1], False), False)
sketch2.addGeometry(Part.BSplineCurve([App.Vector(17.876955, 24.816022, 0), App.Vector(17.876247, 24.782238, 0), App.Vector(17.874863, 24.716193, 0), App.Vector(17.864623, 24.619922, 0), App.Vector(17.848457, 24.529009, 0), App.Vector(17.824902, 24.443749, 0), App.Vector(17.79345, 24.364531, 0), App.Vector(17.757258, 24.289897, 0), App.Vector(17.712929, 24.22111, 0), App.Vector(17.661982, 24.158426, 0), App.Vector(17.606213, 24.100939, 0), App.Vector(17.543841, 24.052375, 0), App.Vector(17.47755, 24.009992, 0), App.Vector(17.405688, 23.976358, 0), App.Vector(17.329461, 23.949565, 0), App.Vector(17.247998, 23.931132, 0), App.Vector(17.161936, 23.919261, 0), App.Vector(17.102729, 23.918095, 0), App.Vector(17.072522, 23.917499, 0)], [4, 1, 1, 1, 1, 1, 1, 1, 1, 1, 1, 1, 1, 1, 1, 1, 4], [0, 1.18883488, 2.324085585, 3.403324648, 4.435760984, 5.430939693, 6.399398042, 7.350695849, 8.303447928, 9.238903148, 10.162711262, 11.079111508, 12.002535262, 12.948556669, 13.917381511, 14.937468638, 16], False, 3, [1, 1, 1, 1, 1, 1, 1, 1, 1, 1, 1, 1, 1, 1, 1, 1, 1, 1, 1], False), False)
sketch2.addGeometry(Part.BSplineCurve([App.Vector(17.072522, 25.709516, 0), App.Vector(17.102723, 25.708897, 0), App.Vector(17.16192, 25.707684, 0), App.Vector(17.248115, 25.696137, 0), App.Vector(17.329349, 25.676506, 0), App.Vector(17.405712, 25.650014, 0), App.Vector(17.477514, 25.616248, 0), App.Vector(17.544089, 25.574, 0), App.Vector(17.605985, 25.524585, 0), App.Vector(17.661983, 25.467177, 0), App.Vector(17.713186, 25.404384, 0), App.Vector(17.75683, 25.3352, 0), App.Vector(17.793688, 25.26093, 0), App.Vector(17.824732, 25.18201, 0), App.Vector(17.8484, 25.097531, 0), App.Vector(17.864572, 25.008053, 0), App.Vector(17.874874, 24.913703, 0), App.Vector(17.87625, 24.849088, 0), App.Vector(17.876955, 24.816022, 0)], [4, 1, 1, 1, 1, 1, 1, 1, 1, 1, 1, 1, 1, 1, 1, 1, 4], [0, 1.067089171, 2.09155204, 3.066481157, 4.016560595, 4.943945447, 5.864276661, 6.797319754, 7.73678768, 8.693626662, 9.656136735, 10.621173085, 11.620620688, 12.649338655, 13.716562035, 14.831436133, 16], False, 3, [1, 1, 1, 1, 1, 1, 1, 1, 1, 1, 1, 1, 1, 1, 1, 1, 1, 1, 1], False), False)
sketch2.addConstraint(Sketcher.Constraint("Block", 17))
sketch2.addConstraint(Sketcher.Constraint("Block", 18))
sketch2.addConstraint(Sketcher.Constraint("Block", 19))
sketch2.addConstraint(Sketcher.Constraint("Block", 21))
sketch2.addConstraint(Sketcher.Constraint("Block", 22))
sketch2.addConstraint(Sketcher.Constraint("Block", 23))
sketch2.addConstraint(Sketcher.Constraint("Block", 24))
sketch2.addConstraint(Sketcher.Constraint("Block", 26))
sketch2.addConstraint(Sketcher.Constraint("Block", 27))
sketch2.addConstraint(Sketcher.Constraint("Block", 28))
sketch2.addConstraint(Sketcher.Constraint("Block", 29))
sketch2.addConstraint(Sketcher.Constraint("Block", 30))
sketch2.addConstraint(Sketcher.Constraint("Block", 31))
sketch2.addConstraint(Sketcher.Constraint("Block", 32))
sketch2.addConstraint(Sketcher.Constraint("Block", 33))
sketch2.addConstraint(Sketcher.Constraint("Block", 34))
sketch2.addConstraint(Sketcher.Constraint("Coincident", 0, 2, 1, 1))
sketch2.addConstraint(Sketcher.Constraint("Coincident", 1, 2, 2, 1))
sketch2.addConstraint(Sketcher.Constraint("Coincident", 2, 2, 3, 1))
sketch2.addConstraint(Sketcher.Constraint("Coincident", 3, 2, 4, 1))
sketch2.addConstraint(Sketcher.Constraint("Coincident", 4, 2, 5, 1))
sketch2.addConstraint(Sketcher.Constraint("Coincident", 5, 2, 6, 1))
sketch2.addConstraint(Sketcher.Constraint("Coincident", 6, 2, 7, 1))
sketch2.addConstraint(Sketcher.Constraint("Coincident", 7, 2, 8, 1))
sketch2.addConstraint(Sketcher.Constraint("Coincident", 8, 2, 9, 1))
sketch2.addConstraint(Sketcher.Constraint("Coincident", 9, 2, 10, 1))
sketch2.addConstraint(Sketcher.Constraint("Coincident", 10, 2, 11, 1))
sketch2.addConstraint(Sketcher.Constraint("Coincident", 11, 2, 12, 1))
sketch2.addConstraint(Sketcher.Constraint("Coincident", 12, 2, 0, 1))
sketch2.addConstraint(Sketcher.Constraint("Coincident", 13, 2, 14, 1))
sketch2.addConstraint(Sketcher.Constraint("Coincident", 14, 2, 15, 1))
sketch2.addConstraint(Sketcher.Constraint("Coincident", 15, 2, 16, 1))
sketch2.addConstraint(Sketcher.Constraint("Coincident", 16, 2, 13, 1))
sketch2.addConstraint(Sketcher.Constraint("Coincident", 19, 1, 20, 1))
sketch2.addConstraint(Sketcher.Constraint("Coincident", 20, 2, 21, 2))
sketch2.addConstraint(Sketcher.Constraint("Coincident", 24, 1, 25, 1))
sketch2.addConstraint(Sketcher.Constraint("Coincident", 25, 2, 26, 2))
sketch2.addConstraint(Sketcher.Constraint("Vertical", 0))
sketch2.addConstraint(Sketcher.Constraint("Horizontal", 1))
sketch2.addConstraint(Sketcher.Constraint("Horizontal", 4))
sketch2.addConstraint(Sketcher.Constraint("Vertical", 5))
sketch2.addConstraint(Sketcher.Constraint("Horizontal", 6))
sketch2.addConstraint(Sketcher.Constraint("Vertical", 7))
sketch2.addConstraint(Sketcher.Constraint("Horizontal", 9))
sketch2.addConstraint(Sketcher.Constraint("Vertical", 11))
sketch2.addConstraint(Sketcher.Constraint("Horizontal", 12))
sketch2.addConstraint(Sketcher.Constraint("Vertical", 13))
sketch2.addConstraint(Sketcher.Constraint("Horizontal", 14))
sketch2.addConstraint(Sketcher.Constraint("Vertical", 15))
sketch2.addConstraint(Sketcher.Constraint("Horizontal", 16))
sketch2.addConstraint(Sketcher.Constraint("Horizontal", 1, 2, 3, 2))
sketch2.addConstraint(Sketcher.Constraint("Horizontal", 6, 2, 8, 2))
sketch2.addConstraint(Sketcher.Constraint("Horizontal", 9, 2, 11, 2))
sketch2.addConstraint(Sketcher.Constraint("Horizontal", 12, 2, 13, 2))
sketch2.addConstraint(Sketcher.Constraint("Horizontal", 4, 2, 15, 2))
sketch2.addConstraint(Sketcher.Constraint("Equal", 6, 12))
sketch2.addConstraint(Sketcher.Constraint("Equal", 12, 14))
sketch2.addConstraint(Sketcher.Constraint("DistanceY", 0, 2, 0, 1, 3.5))
sketch2.addConstraint(Sketcher.Constraint("DistanceX", 6, 1, 6, 2, 0.97322))
sketch2.addConstraint(Sketcher.Constraint("DistanceY", 7, 2, 7, 1, 1.94644))
sketch2.addConstraint(Sketcher.Constraint("DistanceX", 2, 2, 1, 2, 0.858301))
sketch2.addConstraint(Sketcher.Constraint("DistanceY", 7, 2, 2, 2, 0.720398))
sketch2.addConstraint(Sketcher.Constraint("DistanceX", 8, 2, 2, 2, 0.417299))
sketch2.addConstraint(Sketcher.Constraint("DistanceX", 5, 2, 9, 2, 2.452801))
sketch2.addConstraint(Sketcher.Constraint("DistanceY", 20, 2, 14, 2, 1.2756))
sketch2.addConstraint(Sketcher.Constraint("DistanceX", 1, 2, 1, 1, 1.172173))
sketch2.addConstraint(Sketcher.Constraint("DistanceX", 4, 2, 4, 1, 1.176483))
sketch2.addConstraint(Sketcher.Constraint("DistanceX", 9, 1, 9, 2, 0.814488))
sketch2.addConstraint(Sketcher.Constraint("DistanceY", 11, 1, 11, 2, 1.931356))
sketch2.addConstraint(Sketcher.Constraint("DistanceX", -1, 1, 2, 2, 7.521321))
sketch2.addConstraint(Sketcher.Constraint("DistanceX", 12, 2, 13, 2, 0.556639))
sketch2.setExpression("Constraints[57]", "Params.sketch2_height")
pad2 = body.newObject("PartDesign::Pad", "Pad001")
pad2.Profile = sketch2
pad2.setExpression("Length", "Params.pad2_length")
pad2.Reversed = True

sketch3 = body.newObject("Sketcher::SketchObject", "Sketch002")
sketch3.AttachmentSupport = (doc.getObject("YZ_Plane"), [""])
sketch3.MapMode = "FlatFace"
sketch3.AttachmentOffset = App.Placement(App.Vector(0, 0, -0.073843), App.Rotation())
sketch3.addGeometry(Part.LineSegment(App.Vector(26, 19, 0), App.Vector(20, 19, 0)), False)
sketch3.addGeometry(Part.LineSegment(App.Vector(20, 19, 0), App.Vector(20, 31, 0)), False)
sketch3.addGeometry(Part.LineSegment(App.Vector(20, 31, 0), App.Vector(26, 31, 0)), False)
sketch3.addGeometry(Part.LineSegment(App.Vector(26, 31, 0), App.Vector(26, 19, 0)), False)
sketch3.addConstraint(Sketcher.Constraint("Coincident", 0, 2, 1, 1))
sketch3.addConstraint(Sketcher.Constraint("Coincident", 1, 2, 2, 1))
sketch3.addConstraint(Sketcher.Constraint("Coincident", 2, 2, 3, 1))
sketch3.addConstraint(Sketcher.Constraint("Coincident", 3, 2, 0, 1))
sketch3.addConstraint(Sketcher.Constraint("Horizontal", 0))
sketch3.addConstraint(Sketcher.Constraint("Vertical", 1))
sketch3.addConstraint(Sketcher.Constraint("Horizontal", 2))
sketch3.addConstraint(Sketcher.Constraint("Vertical", 3))
sketch3.addConstraint(Sketcher.Constraint("DistanceY", 1, 1, 1, 2, 12.0))
sketch3.addConstraint(Sketcher.Constraint("DistanceX", 0, 2, 0, 1, 5.8))
sketch3.addConstraint(Sketcher.Constraint("DistanceY", -1, 1, 0, 2, 19.379741))
sketch3.addConstraint(Sketcher.Constraint("DistanceX", -1, 1, 0, 2, 19.851164))
sketch3.setExpression("Constraints[8]", "Params.sketch3_height")
sketch3.setExpression("Constraints[9]", "Params.sketch3_width")
pocket1 = body.newObject("PartDesign::Pocket", "Pocket")
pocket1.Profile = sketch3
pocket1.Type = "ThroughAll"
pocket1.Reversed = True
doc.recompute()

fillet = body.newObject("PartDesign::Fillet", "Fillet")
fillet.Base = (pocket1, edges_at(pocket1, [(11.219, 25.651, 19.38), (11.219, 25.651, 31.38)]))
fillet.setExpression("Radius", "Params.fillet_radius")

doc.recompute()
